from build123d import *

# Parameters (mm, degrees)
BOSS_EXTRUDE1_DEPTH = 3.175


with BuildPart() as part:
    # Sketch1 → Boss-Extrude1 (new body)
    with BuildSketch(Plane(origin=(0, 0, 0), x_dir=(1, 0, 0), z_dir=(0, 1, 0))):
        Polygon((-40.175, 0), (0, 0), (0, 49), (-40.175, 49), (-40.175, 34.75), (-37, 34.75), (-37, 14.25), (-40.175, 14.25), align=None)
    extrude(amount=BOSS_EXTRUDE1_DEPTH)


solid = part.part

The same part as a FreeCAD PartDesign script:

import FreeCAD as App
import Part
import Sketcher
from FreeCAD import Vector
Q = App.Units.Quantity

doc = App.newDocument("Part")
params = doc.addObject("Spreadsheet::Sheet", "Params")
for row, (alias, value) in enumerate([
    ("sketch1_height", "49 mm"),
    ("sketch1_height2", "20.5 mm"),
    ("pad1_length", "3.175 mm"),
], start=1):
    params.set(f"A{row}", alias)
    params.set(f"B{row}", "=" + value)
    params.setAlias(f"B{row}", alias)

body = doc.addObject("PartDesign::Body", "Body")

# Sketch on XZ plane
sketch1 = body.newObject("Sketcher::SketchObject", "Sketch")
sketch1.AttachmentSupport = (doc.getObject("XZ_Plane"), [""])
sketch1.MapMode = "FlatFace"
sketch1.addGeometry([
    Part.LineSegment(Vector(-40.175, 0, 0), Vector(0, 0, 0)),  # 0
    Part.LineSegment(Vector(0, 0, 0), Vector(0, -49, 0)),  # 1
    Part.LineSegment(Vector(0, -49, 0), Vector(-40.175, -49, 0)),  # 2
    Part.LineSegment(Vector(-40.175, -49, 0), Vector(-40.175, -34.75, 0)),  # 3
    Part.LineSegment(Vector(-40.175, -34.75, 0), Vector(-37, -34.75, 0)),  # 4
    Part.LineSegment(Vector(-37, -34.75, 0), Vector(-37, -14.25, 0)),  # 5
    Part.LineSegment(Vector(-37, -14.25, 0), Vector(-40.175, -14.25, 0)),  # 6
    Part.LineSegment(Vector(-40.175, -14.25, 0), Vector(-40.175, 0, 0)),  # 7
], False)
sketch1.addConstraint([
    Sketcher.Constraint("Coincident", 0, 2, 1, 1),
    Sketcher.Constraint("Coincident", 1, 2, 2, 1),
    Sketcher.Constraint("Coincident", 2, 2, 3, 1),
    Sketcher.Constraint("Coincident", 3, 2, 4, 1),
    Sketcher.Constraint("Coincident", 4, 2, 5, 1),
    Sketcher.Constraint("Coincident", 5, 2, 6, 1),
    Sketcher.Constraint("Coincident", 6, 2, 7, 1),
    Sketcher.Constraint("Coincident", 7, 2, 0, 1),
    Sketcher.Constraint("Horizontal", 0),
    Sketcher.Constraint("Vertical", 1),
    Sketcher.Constraint("Horizontal", 2),
    Sketcher.Constraint("Vertical", 3),
    Sketcher.Constraint("Horizontal", 4),
    Sketcher.Constraint("Vertical", 5),
    Sketcher.Constraint("Horizontal", 6),
    Sketcher.Constraint("Vertical", 7),
    Sketcher.Constraint("Coincident", 0, 2, -1, 1),
    Sketcher.Constraint("Vertical", 3, 2, 6, 2),
    Sketcher.Constraint("Equal", 3, 7),
    Sketcher.Constraint("DistanceY", 1, 2, 1, 1, Q("49 mm")),
    Sketcher.Constraint("DistanceY", 5, 1, 5, 2, Q("20.5 mm")),
    Sketcher.Constraint("DistanceX", 4, 2, -1, 1, Q("37 mm")),
    Sketcher.Constraint("DistanceX", 0, 1, 0, 2, Q("40.175 mm")),
])
sketch1.setExpression("Constraints[19]", "Params.sketch1_height")
sketch1.setExpression("Constraints[20]", "Params.sketch1_height2")
pad1 = body.newObject("PartDesign::Pad", "Pad")
pad1.Profile = sketch1
pad1.setExpression("Length", "Params.pad1_length")
pad1.Reversed = True

doc.recompute()
